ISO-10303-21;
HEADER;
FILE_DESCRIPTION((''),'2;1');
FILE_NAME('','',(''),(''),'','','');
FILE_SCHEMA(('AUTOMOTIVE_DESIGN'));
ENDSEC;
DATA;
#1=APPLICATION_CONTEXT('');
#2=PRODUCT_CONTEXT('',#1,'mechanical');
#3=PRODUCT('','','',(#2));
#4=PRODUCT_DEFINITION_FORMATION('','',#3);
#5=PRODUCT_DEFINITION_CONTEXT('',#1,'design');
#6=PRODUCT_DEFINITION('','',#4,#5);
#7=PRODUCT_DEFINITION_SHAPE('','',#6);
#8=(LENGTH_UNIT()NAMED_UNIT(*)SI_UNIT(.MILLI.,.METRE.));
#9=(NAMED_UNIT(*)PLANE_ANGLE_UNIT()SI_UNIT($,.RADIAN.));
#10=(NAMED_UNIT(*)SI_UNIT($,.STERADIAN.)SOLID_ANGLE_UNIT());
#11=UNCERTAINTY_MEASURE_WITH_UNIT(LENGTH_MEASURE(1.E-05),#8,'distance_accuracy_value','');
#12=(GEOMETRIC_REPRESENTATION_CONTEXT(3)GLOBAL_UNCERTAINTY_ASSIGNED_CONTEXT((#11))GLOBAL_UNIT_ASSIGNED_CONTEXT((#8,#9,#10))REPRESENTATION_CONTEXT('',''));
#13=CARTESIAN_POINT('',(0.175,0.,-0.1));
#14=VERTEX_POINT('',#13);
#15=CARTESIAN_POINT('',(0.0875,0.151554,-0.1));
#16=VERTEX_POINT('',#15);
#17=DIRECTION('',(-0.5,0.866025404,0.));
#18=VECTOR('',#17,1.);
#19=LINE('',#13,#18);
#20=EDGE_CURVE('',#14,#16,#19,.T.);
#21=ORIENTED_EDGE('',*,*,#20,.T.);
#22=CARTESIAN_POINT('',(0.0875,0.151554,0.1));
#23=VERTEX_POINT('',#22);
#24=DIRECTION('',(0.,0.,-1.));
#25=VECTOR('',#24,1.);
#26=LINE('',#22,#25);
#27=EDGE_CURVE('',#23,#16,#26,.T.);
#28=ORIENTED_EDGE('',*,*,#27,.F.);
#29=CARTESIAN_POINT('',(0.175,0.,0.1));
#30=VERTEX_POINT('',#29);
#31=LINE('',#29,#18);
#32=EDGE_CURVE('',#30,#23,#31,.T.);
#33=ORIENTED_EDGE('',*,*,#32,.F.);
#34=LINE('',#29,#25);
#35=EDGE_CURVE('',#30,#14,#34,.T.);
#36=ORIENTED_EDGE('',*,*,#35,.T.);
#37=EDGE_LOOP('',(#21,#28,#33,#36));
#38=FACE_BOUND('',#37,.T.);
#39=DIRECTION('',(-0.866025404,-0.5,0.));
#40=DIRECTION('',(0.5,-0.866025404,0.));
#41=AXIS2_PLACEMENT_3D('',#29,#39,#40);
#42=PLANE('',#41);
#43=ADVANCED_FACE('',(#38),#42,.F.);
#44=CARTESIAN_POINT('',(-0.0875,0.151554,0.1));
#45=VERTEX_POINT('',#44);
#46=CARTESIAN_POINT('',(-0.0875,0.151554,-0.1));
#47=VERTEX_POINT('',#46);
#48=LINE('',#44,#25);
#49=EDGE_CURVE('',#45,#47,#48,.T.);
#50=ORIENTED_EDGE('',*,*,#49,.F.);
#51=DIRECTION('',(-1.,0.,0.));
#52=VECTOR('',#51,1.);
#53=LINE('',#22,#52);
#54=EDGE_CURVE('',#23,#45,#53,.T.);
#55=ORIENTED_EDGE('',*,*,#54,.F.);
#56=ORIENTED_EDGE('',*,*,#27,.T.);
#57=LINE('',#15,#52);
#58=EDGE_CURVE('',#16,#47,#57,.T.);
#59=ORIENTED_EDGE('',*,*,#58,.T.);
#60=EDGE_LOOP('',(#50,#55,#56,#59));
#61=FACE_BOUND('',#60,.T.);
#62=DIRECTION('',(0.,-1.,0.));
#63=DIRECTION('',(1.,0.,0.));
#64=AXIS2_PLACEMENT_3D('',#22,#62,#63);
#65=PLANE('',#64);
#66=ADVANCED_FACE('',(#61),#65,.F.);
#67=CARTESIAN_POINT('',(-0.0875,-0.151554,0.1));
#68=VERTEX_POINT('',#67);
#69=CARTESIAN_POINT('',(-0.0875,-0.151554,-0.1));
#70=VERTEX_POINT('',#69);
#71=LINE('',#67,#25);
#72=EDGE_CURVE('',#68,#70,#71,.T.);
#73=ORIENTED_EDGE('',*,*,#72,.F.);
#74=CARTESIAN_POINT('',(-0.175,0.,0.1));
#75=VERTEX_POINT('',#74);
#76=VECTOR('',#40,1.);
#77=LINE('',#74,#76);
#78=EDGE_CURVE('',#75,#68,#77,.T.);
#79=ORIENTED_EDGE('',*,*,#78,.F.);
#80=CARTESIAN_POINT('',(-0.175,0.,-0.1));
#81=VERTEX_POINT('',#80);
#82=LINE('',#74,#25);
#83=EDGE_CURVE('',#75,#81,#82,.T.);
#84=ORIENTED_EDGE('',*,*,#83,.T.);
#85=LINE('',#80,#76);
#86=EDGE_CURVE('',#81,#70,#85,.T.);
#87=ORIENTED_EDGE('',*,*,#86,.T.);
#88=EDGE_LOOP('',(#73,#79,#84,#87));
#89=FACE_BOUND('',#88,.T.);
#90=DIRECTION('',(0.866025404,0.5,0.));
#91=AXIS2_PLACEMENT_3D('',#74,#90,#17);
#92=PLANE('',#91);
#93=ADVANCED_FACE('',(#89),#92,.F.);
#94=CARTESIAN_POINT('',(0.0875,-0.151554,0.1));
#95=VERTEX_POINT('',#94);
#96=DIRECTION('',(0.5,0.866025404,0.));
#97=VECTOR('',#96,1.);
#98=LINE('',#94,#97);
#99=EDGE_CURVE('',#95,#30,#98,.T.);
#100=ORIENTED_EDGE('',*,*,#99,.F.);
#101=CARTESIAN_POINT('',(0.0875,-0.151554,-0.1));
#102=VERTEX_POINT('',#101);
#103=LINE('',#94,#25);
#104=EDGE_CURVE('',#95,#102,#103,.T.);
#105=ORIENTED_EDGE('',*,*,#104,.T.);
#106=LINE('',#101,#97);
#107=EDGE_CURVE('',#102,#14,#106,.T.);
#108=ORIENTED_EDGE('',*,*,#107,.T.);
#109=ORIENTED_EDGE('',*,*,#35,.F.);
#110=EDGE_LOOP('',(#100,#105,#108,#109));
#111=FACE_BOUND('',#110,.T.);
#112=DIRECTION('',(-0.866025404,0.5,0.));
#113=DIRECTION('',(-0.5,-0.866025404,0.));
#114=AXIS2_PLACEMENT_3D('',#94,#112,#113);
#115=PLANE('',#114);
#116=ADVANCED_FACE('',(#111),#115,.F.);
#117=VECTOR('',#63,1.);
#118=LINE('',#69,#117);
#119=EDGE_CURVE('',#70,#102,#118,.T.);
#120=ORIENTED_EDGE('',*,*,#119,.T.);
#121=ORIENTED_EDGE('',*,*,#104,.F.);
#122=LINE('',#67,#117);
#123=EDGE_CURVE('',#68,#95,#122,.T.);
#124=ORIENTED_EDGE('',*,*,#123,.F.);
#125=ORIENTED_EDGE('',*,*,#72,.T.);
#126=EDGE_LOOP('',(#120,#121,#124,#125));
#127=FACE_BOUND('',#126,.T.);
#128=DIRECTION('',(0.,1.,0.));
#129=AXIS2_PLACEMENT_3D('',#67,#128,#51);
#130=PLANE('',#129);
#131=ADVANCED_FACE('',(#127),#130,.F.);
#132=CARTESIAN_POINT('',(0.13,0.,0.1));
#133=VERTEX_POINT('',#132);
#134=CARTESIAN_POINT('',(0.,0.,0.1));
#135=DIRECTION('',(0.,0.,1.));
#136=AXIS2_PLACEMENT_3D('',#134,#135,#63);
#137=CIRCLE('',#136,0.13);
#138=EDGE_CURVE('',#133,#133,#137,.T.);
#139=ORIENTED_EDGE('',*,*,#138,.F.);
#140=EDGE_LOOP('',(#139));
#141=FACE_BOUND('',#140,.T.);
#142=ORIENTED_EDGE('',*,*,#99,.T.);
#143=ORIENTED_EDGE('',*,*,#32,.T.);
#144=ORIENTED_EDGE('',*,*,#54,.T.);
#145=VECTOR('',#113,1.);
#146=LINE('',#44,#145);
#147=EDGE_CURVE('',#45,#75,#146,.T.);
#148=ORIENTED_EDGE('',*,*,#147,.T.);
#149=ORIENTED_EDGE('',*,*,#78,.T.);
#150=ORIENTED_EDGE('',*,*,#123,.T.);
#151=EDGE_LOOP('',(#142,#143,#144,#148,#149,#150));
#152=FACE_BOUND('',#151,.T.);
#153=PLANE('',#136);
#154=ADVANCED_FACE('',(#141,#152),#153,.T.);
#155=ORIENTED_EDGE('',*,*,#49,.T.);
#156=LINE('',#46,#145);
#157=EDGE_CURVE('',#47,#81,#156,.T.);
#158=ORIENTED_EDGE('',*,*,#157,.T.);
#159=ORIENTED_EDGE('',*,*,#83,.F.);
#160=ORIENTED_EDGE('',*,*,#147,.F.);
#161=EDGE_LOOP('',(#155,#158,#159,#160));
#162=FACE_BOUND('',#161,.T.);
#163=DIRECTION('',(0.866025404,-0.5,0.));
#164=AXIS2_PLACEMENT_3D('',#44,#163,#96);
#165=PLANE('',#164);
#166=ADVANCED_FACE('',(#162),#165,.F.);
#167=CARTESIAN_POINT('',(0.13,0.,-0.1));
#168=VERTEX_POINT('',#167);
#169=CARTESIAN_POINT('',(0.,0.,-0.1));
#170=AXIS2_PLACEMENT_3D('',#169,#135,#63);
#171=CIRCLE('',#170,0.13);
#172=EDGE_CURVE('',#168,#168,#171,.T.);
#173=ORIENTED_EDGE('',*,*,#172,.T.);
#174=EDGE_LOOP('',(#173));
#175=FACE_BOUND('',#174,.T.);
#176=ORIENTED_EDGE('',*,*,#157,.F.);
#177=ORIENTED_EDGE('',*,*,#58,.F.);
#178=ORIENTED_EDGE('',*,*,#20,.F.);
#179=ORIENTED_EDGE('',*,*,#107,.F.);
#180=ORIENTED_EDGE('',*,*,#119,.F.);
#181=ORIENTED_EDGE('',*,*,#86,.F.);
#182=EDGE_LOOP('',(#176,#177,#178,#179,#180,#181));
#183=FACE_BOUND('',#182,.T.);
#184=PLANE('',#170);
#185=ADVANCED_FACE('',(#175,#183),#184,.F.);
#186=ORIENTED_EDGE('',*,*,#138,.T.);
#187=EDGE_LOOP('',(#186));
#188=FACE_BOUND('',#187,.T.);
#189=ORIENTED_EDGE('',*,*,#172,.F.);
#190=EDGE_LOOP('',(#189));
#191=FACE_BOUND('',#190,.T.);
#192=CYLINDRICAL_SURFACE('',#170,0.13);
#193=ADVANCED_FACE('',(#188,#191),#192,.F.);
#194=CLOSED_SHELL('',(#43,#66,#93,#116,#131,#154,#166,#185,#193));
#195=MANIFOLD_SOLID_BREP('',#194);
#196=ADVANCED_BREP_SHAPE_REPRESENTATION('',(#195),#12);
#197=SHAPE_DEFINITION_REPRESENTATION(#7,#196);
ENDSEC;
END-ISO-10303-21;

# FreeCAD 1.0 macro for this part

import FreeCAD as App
import Part
import Sketcher
from FreeCAD import Vector
Q = App.Units.Quantity


def add_polygon(sketch, points):
    """Adds a closed chain of lines whose ends are joined by coincident constraints."""
    first, n = sketch.GeometryCount, len(points)
    for a, b in zip(points, points[1:] + points[:1]):
        sketch.addGeometry(Part.LineSegment(App.Vector(*a, 0), App.Vector(*b, 0)), False)
    for i in range(n):
        sketch.addConstraint(Sketcher.Constraint("Coincident", first + i, 2, first + (i + 1) % n, 1))

doc = App.newDocument("Part")
body = doc.addObject("PartDesign::Body", "Body")

# Sketch on XY plane
sketch1 = body.newObject("Sketcher::SketchObject", "Sketch")
sketch1.AttachmentSupport = (doc.getObject("XY_Plane"), [""])
sketch1.MapMode = "FlatFace"
add_polygon(sketch1, [(0.175, 0), (0.0875, 0.151554), (-0.0875, 0.151554), (-0.175, 0), (-0.0875, -0.151554), (0.0875, -0.151554)])  # lines 0-5
sketch1.addConstraint([
    Sketcher.Constraint("Horizontal", 1),
    Sketcher.Constraint("Horizontal", 4),
    Sketcher.Constraint("Symmetric", 0, 2, 3, 2, -1, 1),
    Sketcher.Constraint("Symmetric", 2, 2, 5, 2, -1, 1),
    Sketcher.Constraint("PointOnObject", 2, 2, -1),
    Sketcher.Constraint("Parallel", 2, 5),
    Sketcher.Constraint("Vertical", 1, 2, 3, 2),
    Sketcher.Constraint("Angle", 0, Q("120 deg")),
    Sketcher.Constraint("DistanceX", 1, 2, 1, 1, Q("0.175 mm")),
    Sketcher.Constraint("DistanceX", 2, 2, 5, 2, Q("0.35 mm")),
])
pad1 = body.newObject("PartDesign::Pad", "Pad")
pad1.Profile = sketch1
pad1.Length = 0.2
pad1.Midplane = True

# Sketch on XY plane
sketch2 = body.newObject("Sketcher::SketchObject", "Sketch001")
sketch2.AttachmentSupport = (doc.getObject("XY_Plane"), [""])
sketch2.MapMode = "FlatFace"
sketch2.AttachmentOffset = App.Placement(Vector(0, 0, 0.1), App.Rotation())
sketch2.addGeometry(Part.Circle(Vector(0, 0, 0), Vector(0, 0, 1), 0.13), False)
sketch2.addConstraint([
    Sketcher.Constraint("Coincident", 0, 3, -1, 1),
    Sketcher.Constraint("Diameter", 0, Q("0.26 mm")),
])
pocket1 = body.newObject("PartDesign::Pocket", "Pocket")
pocket1.Profile = sketch2
pocket1.Length = 0.2

doc.recompute()
